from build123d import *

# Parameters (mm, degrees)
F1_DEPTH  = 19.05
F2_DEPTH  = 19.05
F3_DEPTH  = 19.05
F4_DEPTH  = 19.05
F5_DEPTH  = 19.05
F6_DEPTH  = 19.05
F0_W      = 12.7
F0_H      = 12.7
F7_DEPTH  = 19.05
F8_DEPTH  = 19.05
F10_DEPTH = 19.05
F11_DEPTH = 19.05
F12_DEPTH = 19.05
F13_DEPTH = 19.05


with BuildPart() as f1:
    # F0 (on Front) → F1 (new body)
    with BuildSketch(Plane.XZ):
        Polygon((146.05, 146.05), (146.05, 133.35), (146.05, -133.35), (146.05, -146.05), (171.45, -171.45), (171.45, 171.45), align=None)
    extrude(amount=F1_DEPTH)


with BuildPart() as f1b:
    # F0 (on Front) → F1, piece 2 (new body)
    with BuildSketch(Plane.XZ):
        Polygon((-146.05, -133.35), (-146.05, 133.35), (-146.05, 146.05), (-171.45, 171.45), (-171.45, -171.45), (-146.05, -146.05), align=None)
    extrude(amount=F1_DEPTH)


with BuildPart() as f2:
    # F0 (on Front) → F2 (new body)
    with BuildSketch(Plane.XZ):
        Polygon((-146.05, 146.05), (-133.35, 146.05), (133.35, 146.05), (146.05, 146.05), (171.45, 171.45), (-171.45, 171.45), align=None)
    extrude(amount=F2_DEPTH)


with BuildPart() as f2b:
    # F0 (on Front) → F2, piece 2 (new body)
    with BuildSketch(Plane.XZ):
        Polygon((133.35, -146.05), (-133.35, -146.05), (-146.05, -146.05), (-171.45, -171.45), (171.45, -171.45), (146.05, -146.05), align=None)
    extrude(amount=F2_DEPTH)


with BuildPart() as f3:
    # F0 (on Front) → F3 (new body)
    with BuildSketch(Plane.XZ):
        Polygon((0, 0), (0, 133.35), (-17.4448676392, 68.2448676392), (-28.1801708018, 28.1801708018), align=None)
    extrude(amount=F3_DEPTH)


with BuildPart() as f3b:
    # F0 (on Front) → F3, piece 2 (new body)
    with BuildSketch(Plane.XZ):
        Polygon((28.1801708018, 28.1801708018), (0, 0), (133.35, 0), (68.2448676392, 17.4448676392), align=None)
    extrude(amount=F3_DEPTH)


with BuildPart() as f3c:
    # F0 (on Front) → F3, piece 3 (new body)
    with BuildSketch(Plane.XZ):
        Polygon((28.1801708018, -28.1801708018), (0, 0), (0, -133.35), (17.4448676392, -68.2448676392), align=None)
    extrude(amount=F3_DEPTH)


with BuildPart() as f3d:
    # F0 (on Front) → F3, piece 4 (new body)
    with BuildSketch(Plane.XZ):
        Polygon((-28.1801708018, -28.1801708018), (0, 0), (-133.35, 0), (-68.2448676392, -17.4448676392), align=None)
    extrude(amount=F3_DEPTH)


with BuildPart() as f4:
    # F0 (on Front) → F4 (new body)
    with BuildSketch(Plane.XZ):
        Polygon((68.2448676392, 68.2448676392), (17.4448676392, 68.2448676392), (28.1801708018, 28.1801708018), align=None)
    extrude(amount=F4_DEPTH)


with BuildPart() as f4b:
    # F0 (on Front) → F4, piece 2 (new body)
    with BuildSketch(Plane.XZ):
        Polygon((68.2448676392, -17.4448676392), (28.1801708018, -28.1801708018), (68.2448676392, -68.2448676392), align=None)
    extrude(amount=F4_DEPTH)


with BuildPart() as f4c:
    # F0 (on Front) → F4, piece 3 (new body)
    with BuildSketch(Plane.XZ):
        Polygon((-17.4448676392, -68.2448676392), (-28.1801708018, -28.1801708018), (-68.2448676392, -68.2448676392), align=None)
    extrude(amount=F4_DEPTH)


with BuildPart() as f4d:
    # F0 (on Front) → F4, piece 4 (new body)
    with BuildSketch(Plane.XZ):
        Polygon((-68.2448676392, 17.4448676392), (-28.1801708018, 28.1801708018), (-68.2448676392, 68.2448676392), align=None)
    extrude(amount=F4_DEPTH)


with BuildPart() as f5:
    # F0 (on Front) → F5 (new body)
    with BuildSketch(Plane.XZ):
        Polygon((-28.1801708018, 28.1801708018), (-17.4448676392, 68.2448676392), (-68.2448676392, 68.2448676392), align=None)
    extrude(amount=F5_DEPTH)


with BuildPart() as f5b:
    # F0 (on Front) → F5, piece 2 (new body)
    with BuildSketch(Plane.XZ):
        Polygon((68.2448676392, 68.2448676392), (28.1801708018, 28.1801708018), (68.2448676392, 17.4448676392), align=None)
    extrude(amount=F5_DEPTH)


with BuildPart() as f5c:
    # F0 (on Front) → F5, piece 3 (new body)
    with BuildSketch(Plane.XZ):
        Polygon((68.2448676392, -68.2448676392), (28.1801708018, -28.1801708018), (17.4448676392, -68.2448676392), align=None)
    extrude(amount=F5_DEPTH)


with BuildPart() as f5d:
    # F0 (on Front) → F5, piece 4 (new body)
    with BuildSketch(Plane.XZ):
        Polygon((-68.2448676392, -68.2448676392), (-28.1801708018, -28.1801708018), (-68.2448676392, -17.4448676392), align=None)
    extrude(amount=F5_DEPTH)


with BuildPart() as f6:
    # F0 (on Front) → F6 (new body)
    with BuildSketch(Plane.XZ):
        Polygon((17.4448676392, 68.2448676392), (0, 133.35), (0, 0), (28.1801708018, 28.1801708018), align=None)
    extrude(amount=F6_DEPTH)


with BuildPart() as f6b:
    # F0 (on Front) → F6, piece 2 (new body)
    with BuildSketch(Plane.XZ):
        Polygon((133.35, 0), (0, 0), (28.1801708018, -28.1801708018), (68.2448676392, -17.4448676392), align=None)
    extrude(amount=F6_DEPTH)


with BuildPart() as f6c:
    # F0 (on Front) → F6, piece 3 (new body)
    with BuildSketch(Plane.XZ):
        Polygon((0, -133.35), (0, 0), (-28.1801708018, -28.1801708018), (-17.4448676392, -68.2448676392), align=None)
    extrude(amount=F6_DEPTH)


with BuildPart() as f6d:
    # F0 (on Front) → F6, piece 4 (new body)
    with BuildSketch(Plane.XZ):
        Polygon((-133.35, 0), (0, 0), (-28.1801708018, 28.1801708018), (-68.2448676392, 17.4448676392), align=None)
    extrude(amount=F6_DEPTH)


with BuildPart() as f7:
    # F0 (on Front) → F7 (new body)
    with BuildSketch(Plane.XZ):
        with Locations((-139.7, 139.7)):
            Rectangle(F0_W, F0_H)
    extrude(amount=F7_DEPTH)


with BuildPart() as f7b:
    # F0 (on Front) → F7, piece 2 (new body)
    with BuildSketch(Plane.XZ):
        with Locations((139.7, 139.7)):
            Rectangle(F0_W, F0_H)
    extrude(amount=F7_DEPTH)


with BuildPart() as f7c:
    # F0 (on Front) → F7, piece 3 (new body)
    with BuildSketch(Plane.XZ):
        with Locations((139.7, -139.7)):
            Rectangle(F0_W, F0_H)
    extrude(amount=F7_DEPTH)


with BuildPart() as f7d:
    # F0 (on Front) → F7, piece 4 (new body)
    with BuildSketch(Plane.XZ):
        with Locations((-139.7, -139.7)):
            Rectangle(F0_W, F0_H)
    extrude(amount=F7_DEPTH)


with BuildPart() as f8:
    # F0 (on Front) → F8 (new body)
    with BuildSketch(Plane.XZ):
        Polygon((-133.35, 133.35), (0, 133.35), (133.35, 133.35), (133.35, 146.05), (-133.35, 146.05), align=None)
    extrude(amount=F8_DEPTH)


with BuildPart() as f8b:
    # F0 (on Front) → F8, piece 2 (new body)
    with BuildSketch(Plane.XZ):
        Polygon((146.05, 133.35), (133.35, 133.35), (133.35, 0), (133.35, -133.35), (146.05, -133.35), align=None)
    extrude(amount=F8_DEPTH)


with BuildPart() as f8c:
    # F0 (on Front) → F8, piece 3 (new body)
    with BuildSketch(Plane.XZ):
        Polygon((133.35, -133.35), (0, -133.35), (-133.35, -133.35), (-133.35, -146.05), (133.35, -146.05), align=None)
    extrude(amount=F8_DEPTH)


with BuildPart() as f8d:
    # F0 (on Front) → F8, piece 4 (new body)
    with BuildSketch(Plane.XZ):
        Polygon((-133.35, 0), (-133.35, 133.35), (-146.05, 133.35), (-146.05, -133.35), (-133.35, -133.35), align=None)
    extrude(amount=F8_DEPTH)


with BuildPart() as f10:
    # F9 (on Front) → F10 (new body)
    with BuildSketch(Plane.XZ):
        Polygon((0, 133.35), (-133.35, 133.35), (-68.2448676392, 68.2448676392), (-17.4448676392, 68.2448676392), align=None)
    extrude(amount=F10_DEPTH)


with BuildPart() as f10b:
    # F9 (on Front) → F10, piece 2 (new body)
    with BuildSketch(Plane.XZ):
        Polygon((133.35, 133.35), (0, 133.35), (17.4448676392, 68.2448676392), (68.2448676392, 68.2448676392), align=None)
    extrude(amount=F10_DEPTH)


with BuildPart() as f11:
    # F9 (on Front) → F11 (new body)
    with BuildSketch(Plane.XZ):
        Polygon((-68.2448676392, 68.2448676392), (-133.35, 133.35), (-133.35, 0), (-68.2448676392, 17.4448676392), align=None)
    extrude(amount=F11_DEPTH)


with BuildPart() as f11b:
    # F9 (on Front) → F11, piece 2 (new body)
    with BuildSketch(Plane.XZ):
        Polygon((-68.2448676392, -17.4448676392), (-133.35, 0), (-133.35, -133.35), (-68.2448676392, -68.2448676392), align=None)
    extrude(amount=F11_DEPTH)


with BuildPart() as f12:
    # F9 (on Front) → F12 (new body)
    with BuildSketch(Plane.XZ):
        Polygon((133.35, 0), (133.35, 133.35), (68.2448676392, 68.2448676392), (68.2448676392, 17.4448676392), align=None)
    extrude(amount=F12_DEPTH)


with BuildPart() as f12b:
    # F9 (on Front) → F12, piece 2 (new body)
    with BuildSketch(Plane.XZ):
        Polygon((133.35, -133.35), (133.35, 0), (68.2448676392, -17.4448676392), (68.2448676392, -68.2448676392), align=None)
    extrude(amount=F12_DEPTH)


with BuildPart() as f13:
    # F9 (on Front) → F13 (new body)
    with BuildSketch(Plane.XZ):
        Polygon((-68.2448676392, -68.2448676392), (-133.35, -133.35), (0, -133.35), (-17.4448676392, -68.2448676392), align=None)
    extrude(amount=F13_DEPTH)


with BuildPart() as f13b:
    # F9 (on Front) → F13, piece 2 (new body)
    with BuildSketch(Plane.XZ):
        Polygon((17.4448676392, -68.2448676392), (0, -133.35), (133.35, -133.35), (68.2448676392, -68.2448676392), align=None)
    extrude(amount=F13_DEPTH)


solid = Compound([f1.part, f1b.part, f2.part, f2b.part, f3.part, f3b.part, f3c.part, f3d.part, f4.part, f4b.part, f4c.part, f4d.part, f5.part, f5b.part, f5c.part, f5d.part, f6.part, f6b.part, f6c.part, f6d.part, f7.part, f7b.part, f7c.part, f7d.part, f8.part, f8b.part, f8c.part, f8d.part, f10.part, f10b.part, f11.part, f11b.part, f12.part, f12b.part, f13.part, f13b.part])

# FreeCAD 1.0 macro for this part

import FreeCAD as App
import Part
import Sketcher
Q = App.Units.Quantity

doc = App.newDocument("Part")
body = doc.addObject("PartDesign::Body", "Body")

# Sketch on XZ plane
sketch1 = body.newObject("Sketcher::SketchObject", "Sketch")
sketch1.AttachmentSupport = (doc.getObject("XZ_Plane"), [""])
sketch1.MapMode = "FlatFace"
sketch1.addGeometry([
    Part.LineSegment(App.Vector(146, 146, 0), App.Vector(146, -146, 0)),
    Part.LineSegment(App.Vector(146, -146, 0), App.Vector(171, -171, 0)),
    Part.LineSegment(App.Vector(171, -171, 0), App.Vector(171, 171, 0)),
    Part.LineSegment(App.Vector(171, 171, 0), App.Vector(146, 146, 0)),
], False)
sketch1.addConstraint([
    Sketcher.Constraint("Coincident", 0, 2, 1, 1),
    Sketcher.Constraint("Coincident", 1, 2, 2, 1),
    Sketcher.Constraint("Coincident", 2, 2, 3, 1),
    Sketcher.Constraint("Coincident", 3, 2, 0, 1),
    Sketcher.Constraint("Vertical", 0),
    Sketcher.Constraint("Vertical", 2),
    Sketcher.Constraint("Perpendicular", 1, 3),
    Sketcher.Constraint("Equal", 1, 3),
    Sketcher.Constraint("DistanceY", 0, 2, 0, 1, Q("11.5 in")),
    Sketcher.Constraint("DistanceY", 2, 1, 2, 2, Q("13.5 in")),
    Sketcher.Constraint("DistanceX", -1, 1, 0, 2, Q("5.75 in")),
    Sketcher.Constraint("DistanceY", 0, 2, -1, 1, Q("5.75 in")),
])
pad1 = body.newObject("PartDesign::Pad", "Pad")
pad1.Profile = sketch1
pad1.Length = Q("0.75 in")
body2 = doc.addObject("PartDesign::Body", "Body001")

# Sketch on XZ plane
sketch2 = body2.newObject("Sketcher::SketchObject", "Sketch001")
sketch2.AttachmentSupport = (doc.getObject("XZ_Plane001"), [""])
sketch2.MapMode = "FlatFace"
sketch2.addGeometry([
    Part.LineSegment(App.Vector(-146, 146, 0), App.Vector(-171, 171, 0)),
    Part.LineSegment(App.Vector(-171, 171, 0), App.Vector(-171, -171, 0)),
    Part.LineSegment(App.Vector(-171, -171, 0), App.Vector(-146, -146, 0)),
    Part.LineSegment(App.Vector(-146, -146, 0), App.Vector(-146, 146, 0)),
], False)
sketch2.addConstraint([
    Sketcher.Constraint("Coincident", 0, 2, 1, 1),
    Sketcher.Constraint("Coincident", 1, 2, 2, 1),
    Sketcher.Constraint("Coincident", 2, 2, 3, 1),
    Sketcher.Constraint("Coincident", 3, 2, 0, 1),
    Sketcher.Constraint("Vertical", 1),
    Sketcher.Constraint("Vertical", 3),
    Sketcher.Constraint("Perpendicular", 0, 2),
    Sketcher.Constraint("Equal", 0, 2),
    Sketcher.Constraint("DistanceY", 1, 2, 1, 1, Q("13.5 in")),
    Sketcher.Constraint("DistanceY", 3, 1, 3, 2, Q("11.5 in")),
    Sketcher.Constraint("DistanceX", 0, 2, -1, 1, Q("6.75 in")),
    Sketcher.Constraint("DistanceY", -1, 1, 0, 2, Q("6.75 in")),
])
pad2 = body2.newObject("PartDesign::Pad", "Pad001")
pad2.Profile = sketch2
pad2.Length = Q("0.75 in")
body3 = doc.addObject("PartDesign::Body", "Body002")

# Sketch on XZ plane
sketch3 = body3.newObject("Sketcher::SketchObject", "Sketch002")
sketch3.AttachmentSupport = (doc.getObject("XZ_Plane002"), [""])
sketch3.MapMode = "FlatFace"
sketch3.addGeometry([
    Part.LineSegment(App.Vector(-146, 146, 0), App.Vector(146, 146, 0)),
    Part.LineSegment(App.Vector(146, 146, 0), App.Vector(171, 171, 0)),
    Part.LineSegment(App.Vector(171, 171, 0), App.Vector(-171, 171, 0)),
    Part.LineSegment(App.Vector(-171, 171, 0), App.Vector(-146, 146, 0)),
], False)
sketch3.addConstraint([
    Sketcher.Constraint("Coincident", 0, 2, 1, 1),
    Sketcher.Constraint("Coincident", 1, 2, 2, 1),
    Sketcher.Constraint("Coincident", 2, 2, 3, 1),
    Sketcher.Constraint("Coincident", 3, 2, 0, 1),
    Sketcher.Constraint("Horizontal", 0),
    Sketcher.Constraint("Horizontal", 2),
    Sketcher.Constraint("Perpendicular", 1, 3),
    Sketcher.Constraint("Equal", 1, 3),
    Sketcher.Constraint("DistanceX", 0, 1, 0, 2, Q("11.5 in")),
    Sketcher.Constraint("DistanceX", 2, 2, 2, 1, Q("13.5 in")),
    Sketcher.Constraint("DistanceX", -1, 1, 0, 2, Q("5.75 in")),
    Sketcher.Constraint("DistanceY", -1, 1, 0, 2, Q("5.75 in")),
])
pad3 = body3.newObject("PartDesign::Pad", "Pad002")
pad3.Profile = sketch3
pad3.Length = Q("0.75 in")
body4 = doc.addObject("PartDesign::Body", "Body003")

# Sketch on XZ plane
sketch4 = body4.newObject("Sketcher::SketchObject", "Sketch003")
sketch4.AttachmentSupport = (doc.getObject("XZ_Plane003"), [""])
sketch4.MapMode = "FlatFace"
sketch4.addGeometry([
    Part.LineSegment(App.Vector(-146, -146, 0), App.Vector(-171, -171, 0)),
    Part.LineSegment(App.Vector(-171, -171, 0), App.Vector(171, -171, 0)),
    Part.LineSegment(App.Vector(171, -171, 0), App.Vector(146, -146, 0)),
    Part.LineSegment(App.Vector(146, -146, 0), App.Vector(-146, -146, 0)),
], False)
sketch4.addConstraint([
    Sketcher.Constraint("Coincident", 0, 2, 1, 1),
    Sketcher.Constraint("Coincident", 1, 2, 2, 1),
    Sketcher.Constraint("Coincident", 2, 2, 3, 1),
    Sketcher.Constraint("Coincident", 3, 2, 0, 1),
    Sketcher.Constraint("Horizontal", 1),
    Sketcher.Constraint("Horizontal", 3),
    Sketcher.Constraint("Perpendicular", 0, 2),
    Sketcher.Constraint("Equal", 0, 2),
    Sketcher.Constraint("DistanceX", 1, 1, 1, 2, Q("13.5 in")),
    Sketcher.Constraint("DistanceX", 3, 2, 3, 1, Q("11.5 in")),
    Sketcher.Constraint("DistanceX", 0, 2, -1, 1, Q("6.75 in")),
    Sketcher.Constraint("DistanceY", 0, 2, -1, 1, Q("6.75 in")),
])
pad4 = body4.newObject("PartDesign::Pad", "Pad003")
pad4.Profile = sketch4
pad4.Length = Q("0.75 in")
body5 = doc.addObject("PartDesign::Body", "Body004")

# Sketch on XZ plane
sketch5 = body5.newObject("Sketcher::SketchObject", "Sketch004")
sketch5.AttachmentSupport = (doc.getObject("XZ_Plane004"), [""])
sketch5.MapMode = "FlatFace"
sketch5.addGeometry([
    Part.LineSegment(App.Vector(0, 0, 0), App.Vector(0, 133, 0)),
    Part.LineSegment(App.Vector(0, 133, 0), App.Vector(-28, 28, 0)),
    Part.LineSegment(App.Vector(-28, 28, 0), App.Vector(0, 0, 0)),
], False)
sketch5.addConstraint([
    Sketcher.Constraint("Coincident", 0, 2, 1, 1),
    Sketcher.Constraint("Coincident", 1, 2, 2, 1),
    Sketcher.Constraint("Coincident", 2, 2, 0, 1),
    Sketcher.Constraint("Vertical", 0),
    Sketcher.Constraint("Coincident", 2, 2, -1, 1),
    Sketcher.Constraint("Angle", 1, Q("-105 deg")),
    Sketcher.Constraint("Angle", 2, Q("-45 deg")),
    Sketcher.Constraint("DistanceY", 0, 1, 0, 2, Q("5.25 in")),
])
pad5 = body5.newObject("PartDesign::Pad", "Pad004")
pad5.Profile = sketch5
pad5.Length = Q("0.75 in")
body6 = doc.addObject("PartDesign::Body", "Body005")

# Sketch on XZ plane
sketch6 = body6.newObject("Sketcher::SketchObject", "Sketch005")
sketch6.AttachmentSupport = (doc.getObject("XZ_Plane005"), [""])
sketch6.MapMode = "FlatFace"
sketch6.addGeometry([
    Part.LineSegment(App.Vector(28, 28, 0), App.Vector(0, 0, 0)),
    Part.LineSegment(App.Vector(0, 0, 0), App.Vector(133, 0, 0)),
    Part.LineSegment(App.Vector(133, 0, 0), App.Vector(28, 28, 0)),
], False)
sketch6.addConstraint([
    Sketcher.Constraint("Coincident", 0, 2, 1, 1),
    Sketcher.Constraint("Coincident", 1, 2, 2, 1),
    Sketcher.Constraint("Coincident", 2, 2, 0, 1),
    Sketcher.Constraint("Horizontal", 1),
    Sketcher.Constraint("Coincident", 0, 2, -1, 1),
    Sketcher.Constraint("Angle", 0, Q("-135 deg")),
    Sketcher.Constraint("Angle", 2, Q("165 deg")),
    Sketcher.Constraint("DistanceX", 1, 1, 1, 2, Q("5.25 in")),
])
pad6 = body6.newObject("PartDesign::Pad", "Pad005")
pad6.Profile = sketch6
pad6.Length = Q("0.75 in")
body7 = doc.addObject("PartDesign::Body", "Body006")

# Sketch on XZ plane
sketch7 = body7.newObject("Sketcher::SketchObject", "Sketch006")
sketch7.AttachmentSupport = (doc.getObject("XZ_Plane006"), [""])
sketch7.MapMode = "FlatFace"
sketch7.addGeometry([
    Part.LineSegment(App.Vector(28, -28, 0), App.Vector(0, 0, 0)),
    Part.LineSegment(App.Vector(0, 0, 0), App.Vector(0, -133, 0)),
    Part.LineSegment(App.Vector(0, -133, 0), App.Vector(28, -28, 0)),
], False)
sketch7.addConstraint([
    Sketcher.Constraint("Coincident", 0, 2, 1, 1),
    Sketcher.Constraint("Coincident", 1, 2, 2, 1),
    Sketcher.Constraint("Coincident", 2, 2, 0, 1),
    Sketcher.Constraint("Vertical", 1),
    Sketcher.Constraint("Coincident", 0, 2, -1, 1),
    Sketcher.Constraint("Angle", 0, Q("135 deg")),
    Sketcher.Constraint("Angle", 2, Q("75 deg")),
    Sketcher.Constraint("DistanceY", 1, 2, 1, 1, Q("5.25 in")),
])
pad7 = body7.newObject("PartDesign::Pad", "Pad006")
pad7.Profile = sketch7
pad7.Length = Q("0.75 in")
body8 = doc.addObject("PartDesign::Body", "Body007")

# Sketch on XZ plane
sketch8 = body8.newObject("Sketcher::SketchObject", "Sketch007")
sketch8.AttachmentSupport = (doc.getObject("XZ_Plane007"), [""])
sketch8.MapMode = "FlatFace"
sketch8.addGeometry([
    Part.LineSegment(App.Vector(-28, -28, 0), App.Vector(0, 0, 0)),
    Part.LineSegment(App.Vector(0, 0, 0), App.Vector(-133, 0, 0)),
    Part.LineSegment(App.Vector(-133, 0, 0), App.Vector(-28, -28, 0)),
], False)
sketch8.addConstraint([
    Sketcher.Constraint("Coincident", 0, 2, 1, 1),
    Sketcher.Constraint("Coincident", 1, 2, 2, 1),
    Sketcher.Constraint("Coincident", 2, 2, 0, 1),
    Sketcher.Constraint("Horizontal", 1),
    Sketcher.Constraint("Coincident", 0, 2, -1, 1),
    Sketcher.Constraint("Angle", 0, Q("45 deg")),
    Sketcher.Constraint("Angle", 2, Q("-15 deg")),
    Sketcher.Constraint("DistanceX", 1, 2, 1, 1, Q("5.25 in")),
])
pad8 = body8.newObject("PartDesign::Pad", "Pad007")
pad8.Profile = sketch8
pad8.Length = Q("0.75 in")
body9 = doc.addObject("PartDesign::Body", "Body008")

# Sketch on XZ plane
sketch9 = body9.newObject("Sketcher::SketchObject", "Sketch008")
sketch9.AttachmentSupport = (doc.getObject("XZ_Plane008"), [""])
sketch9.MapMode = "FlatFace"
sketch9.addGeometry([
    Part.LineSegment(App.Vector(68, 68, 0), App.Vector(17, 68, 0)),
    Part.LineSegment(App.Vector(17, 68, 0), App.Vector(28, 28, 0)),
    Part.LineSegment(App.Vector(28, 28, 0), App.Vector(68, 68, 0)),
], False)
sketch9.addConstraint([
    Sketcher.Constraint("Coincident", 0, 2, 1, 1),
    Sketcher.Constraint("Coincident", 1, 2, 2, 1),
    Sketcher.Constraint("Coincident", 2, 2, 0, 1),
    Sketcher.Constraint("Horizontal", 0),
    Sketcher.Constraint("DistanceX", 0, 2, 0, 1, Q("2 in")),
    Sketcher.Constraint("Angle", 1, Q("-75 deg")),
    Sketcher.Constraint("Angle", 2, Q("45 deg")),
    Sketcher.Constraint("DistanceX", -1, 1, 1, 2, Q("28.180171 mm")),
    Sketcher.Constraint("DistanceY", -1, 1, 1, 2, Q("28.180171 mm")),
])
pad9 = body9.newObject("PartDesign::Pad", "Pad008")
pad9.Profile = sketch9
pad9.Length = Q("0.75 in")
body10 = doc.addObject("PartDesign::Body", "Body009")

# Sketch on XZ plane
sketch10 = body10.newObject("Sketcher::SketchObject", "Sketch009")
sketch10.AttachmentSupport = (doc.getObject("XZ_Plane009"), [""])
sketch10.MapMode = "FlatFace"
sketch10.addGeometry([
    Part.LineSegment(App.Vector(68, -17, 0), App.Vector(28, -28, 0)),
    Part.LineSegment(App.Vector(28, -28, 0), App.Vector(68, -68, 0)),
    Part.LineSegment(App.Vector(68, -68, 0), App.Vector(68, -17, 0)),
], False)
sketch10.addConstraint([
    Sketcher.Constraint("Coincident", 0, 2, 1, 1),
    Sketcher.Constraint("Coincident", 1, 2, 2, 1),
    Sketcher.Constraint("Coincident", 2, 2, 0, 1),
    Sketcher.Constraint("Vertical", 2),
    Sketcher.Constraint("DistanceY", 2, 1, 2, 2, Q("2 in")),
    Sketcher.Constraint("Angle", 0, Q("-165 deg")),
    Sketcher.Constraint("Angle", 1, Q("-45 deg")),
    Sketcher.Constraint("DistanceX", -1, 1, 0, 2, Q("28.180171 mm")),
    Sketcher.Constraint("DistanceY", 0, 2, -1, 1, Q("28.180171 mm")),
])
pad10 = body10.newObject("PartDesign::Pad", "Pad009")
pad10.Profile = sketch10
pad10.Length = Q("0.75 in")
body11 = doc.addObject("PartDesign::Body", "Body010")

# Sketch on XZ plane
sketch11 = body11.newObject("Sketcher::SketchObject", "Sketch010")
sketch11.AttachmentSupport = (doc.getObject("XZ_Plane010"), [""])
sketch11.MapMode = "FlatFace"
sketch11.addGeometry([
    Part.LineSegment(App.Vector(-17, -68, 0), App.Vector(-28, -28, 0)),
    Part.LineSegment(App.Vector(-28, -28, 0), App.Vector(-68, -68, 0)),
    Part.LineSegment(App.Vector(-68, -68, 0), App.Vector(-17, -68, 0)),
], False)
sketch11.addConstraint([
    Sketcher.Constraint("Coincident", 0, 2, 1, 1),
    Sketcher.Constraint("Coincident", 1, 2, 2, 1),
    Sketcher.Constraint("Coincident", 2, 2, 0, 1),
    Sketcher.Constraint("Horizontal", 2),
    Sketcher.Constraint("DistanceX", 2, 1, 2, 2, Q("2 in")),
    Sketcher.Constraint("Angle", 0, Q("105 deg")),
    Sketcher.Constraint("Angle", 1, Q("-135 deg")),
    Sketcher.Constraint("DistanceX", 0, 2, -1, 1, Q("28.180171 mm")),
    Sketcher.Constraint("DistanceY", 0, 2, -1, 1, Q("28.180171 mm")),
])
pad11 = body11.newObject("PartDesign::Pad", "Pad010")
pad11.Profile = sketch11
pad11.Length = Q("0.75 in")
body12 = doc.addObject("PartDesign::Body", "Body011")

# Sketch on XZ plane
sketch12 = body12.newObject("Sketcher::SketchObject", "Sketch011")
sketch12.AttachmentSupport = (doc.getObject("XZ_Plane011"), [""])
sketch12.MapMode = "FlatFace"
sketch12.addGeometry([
    Part.LineSegment(App.Vector(-68, 17, 0), App.Vector(-28, 28, 0)),
    Part.LineSegment(App.Vector(-28, 28, 0), App.Vector(-68, 68, 0)),
    Part.LineSegment(App.Vector(-68, 68, 0), App.Vector(-68, 17, 0)),
], False)
sketch12.addConstraint([
    Sketcher.Constraint("Coincident", 0, 2, 1, 1),
    Sketcher.Constraint("Coincident", 1, 2, 2, 1),
    Sketcher.Constraint("Coincident", 2, 2, 0, 1),
    Sketcher.Constraint("Vertical", 2),
    Sketcher.Constraint("DistanceY", 2, 2, 2, 1, Q("2 in")),
    Sketcher.Constraint("Angle", 0, Q("15 deg")),
    Sketcher.Constraint("Angle", 1, Q("135 deg")),
    Sketcher.Constraint("DistanceX", 0, 2, -1, 1, Q("28.180171 mm")),
    Sketcher.Constraint("DistanceY", -1, 1, 0, 2, Q("28.180171 mm")),
])
pad12 = body12.newObject("PartDesign::Pad", "Pad011")
pad12.Profile = sketch12
pad12.Length = Q("0.75 in")
body13 = doc.addObject("PartDesign::Body", "Body012")

# Sketch on XZ plane
sketch13 = body13.newObject("Sketcher::SketchObject", "Sketch012")
sketch13.AttachmentSupport = (doc.getObject("XZ_Plane012"), [""])
sketch13.MapMode = "FlatFace"
sketch13.addGeometry([
    Part.LineSegment(App.Vector(-28, 28, 0), App.Vector(-17, 68, 0)),
    Part.LineSegment(App.Vector(-17, 68, 0), App.Vector(-68, 68, 0)),
    Part.LineSegment(App.Vector(-68, 68, 0), App.Vector(-28, 28, 0)),
], False)
sketch13.addConstraint([
    Sketcher.Constraint("Coincident", 0, 2, 1, 1),
    Sketcher.Constraint("Coincident", 1, 2, 2, 1),
    Sketcher.Constraint("Coincident", 2, 2, 0, 1),
    Sketcher.Constraint("Horizontal", 1),
    Sketcher.Constraint("DistanceX", 1, 2, 1, 1, Q("2 in")),
    Sketcher.Constraint("Angle", 0, Q("75 deg")),
    Sketcher.Constraint("Angle", 2, Q("-45 deg")),
    Sketcher.Constraint("DistanceX", 2, 2, -1, 1, Q("28.180171 mm")),
    Sketcher.Constraint("DistanceY", -1, 1, 2, 2, Q("28.180171 mm")),
])
pad13 = body13.newObject("PartDesign::Pad", "Pad012")
pad13.Profile = sketch13
pad13.Length = Q("0.75 in")
body14 = doc.addObject("PartDesign::Body", "Body013")

# Sketch on XZ plane
sketch14 = body14.newObject("Sketcher::SketchObject", "Sketch013")
sketch14.AttachmentSupport = (doc.getObject("XZ_Plane013"), [""])
sketch14.MapMode = "FlatFace"
sketch14.addGeometry([
    Part.LineSegment(App.Vector(68, 68, 0), App.Vector(28, 28, 0)),
    Part.LineSegment(App.Vector(28, 28, 0), App.Vector(68, 17, 0)),
    Part.LineSegment(App.Vector(68, 17, 0), App.Vector(68, 68, 0)),
], False)
sketch14.addConstraint([
    Sketcher.Constraint("Coincident", 0, 2, 1, 1),
    Sketcher.Constraint("Coincident", 1, 2, 2, 1),
    Sketcher.Constraint("Coincident", 2, 2, 0, 1),
    Sketcher.Constraint("Vertical", 2),
    Sketcher.Constraint("DistanceY", 2, 1, 2, 2, Q("2 in")),
    Sketcher.Constraint("Angle", 0, Q("-135 deg")),
    Sketcher.Constraint("Angle", 1, Q("-15 deg")),
    Sketcher.Constraint("DistanceX", -1, 1, 0, 2, Q("28.180171 mm")),
    Sketcher.Constraint("DistanceY", -1, 1, 0, 2, Q("28.180171 mm")),
])
pad14 = body14.newObject("PartDesign::Pad", "Pad013")
pad14.Profile = sketch14
pad14.Length = Q("0.75 in")
body15 = doc.addObject("PartDesign::Body", "Body014")

# Sketch on XZ plane
sketch15 = body15.newObject("Sketcher::SketchObject", "Sketch014")
sketch15.AttachmentSupport = (doc.getObject("XZ_Plane014"), [""])
sketch15.MapMode = "FlatFace"
sketch15.addGeometry([
    Part.LineSegment(App.Vector(68, -68, 0), App.Vector(28, -28, 0)),
    Part.LineSegment(App.Vector(28, -28, 0), App.Vector(17, -68, 0)),
    Part.LineSegment(App.Vector(17, -68, 0), App.Vector(68, -68, 0)),
], False)
sketch15.addConstraint([
    Sketcher.Constraint("Coincident", 0, 2, 1, 1),
    Sketcher.Constraint("Coincident", 1, 2, 2, 1),
    Sketcher.Constraint("Coincident", 2, 2, 0, 1),
    Sketcher.Constraint("Horizontal", 2),
    Sketcher.Constraint("DistanceX", 2, 1, 2, 2, Q("2 in")),
    Sketcher.Constraint("Angle", 0, Q("135 deg")),
    Sketcher.Constraint("Angle", 1, Q("-105 deg")),
    Sketcher.Constraint("DistanceX", -1, 1, 0, 2, Q("28.180171 mm")),
    Sketcher.Constraint("DistanceY", 0, 2, -1, 1, Q("28.180171 mm")),
])
pad15 = body15.newObject("PartDesign::Pad", "Pad014")
pad15.Profile = sketch15
pad15.Length = Q("0.75 in")
body16 = doc.addObject("PartDesign::Body", "Body015")

# Sketch on XZ plane
sketch16 = body16.newObject("Sketcher::SketchObject", "Sketch015")
sketch16.AttachmentSupport = (doc.getObject("XZ_Plane015"), [""])
sketch16.MapMode = "FlatFace"
sketch16.addGeometry([
    Part.LineSegment(App.Vector(-68, -68, 0), App.Vector(-28, -28, 0)),
    Part.LineSegment(App.Vector(-28, -28, 0), App.Vector(-68, -17, 0)),
    Part.LineSegment(App.Vector(-68, -17, 0), App.Vector(-68, -68, 0)),
], False)
sketch16.addConstraint([
    Sketcher.Constraint("Coincident", 0, 2, 1, 1),
    Sketcher.Constraint("Coincident", 1, 2, 2, 1),
    Sketcher.Constraint("Coincident", 2, 2, 0, 1),
    Sketcher.Constraint("Vertical", 2),
    Sketcher.Constraint("DistanceY", 2, 2, 2, 1, Q("2 in")),
    Sketcher.Constraint("Angle", 0, Q("45 deg")),
    Sketcher.Constraint("Angle", 1, Q("165 deg")),
    Sketcher.Constraint("DistanceX", 0, 2, -1, 1, Q("28.180171 mm")),
    Sketcher.Constraint("DistanceY", 0, 2, -1, 1, Q("28.180171 mm")),
])
pad16 = body16.newObject("PartDesign::Pad", "Pad015")
pad16.Profile = sketch16
pad16.Length = Q("0.75 in")
body17 = doc.addObject("PartDesign::Body", "Body016")

# Sketch on XZ plane
sketch17 = body17.newObject("Sketcher::SketchObject", "Sketch016")
sketch17.AttachmentSupport = (doc.getObject("XZ_Plane016"), [""])
sketch17.MapMode = "FlatFace"
sketch17.addGeometry([
    Part.LineSegment(App.Vector(0, 133, 0), App.Vector(0, 0, 0)),
    Part.LineSegment(App.Vector(0, 0, 0), App.Vector(28, 28, 0)),
    Part.LineSegment(App.Vector(28, 28, 0), App.Vector(0, 133, 0)),
], False)
sketch17.addConstraint([
    Sketcher.Constraint("Coincident", 0, 2, 1, 1),
    Sketcher.Constraint("Coincident", 1, 2, 2, 1),
    Sketcher.Constraint("Coincident", 2, 2, 0, 1),
    Sketcher.Constraint("Vertical", 0),
    Sketcher.Constraint("Coincident", 0, 2, -1, 1),
    Sketcher.Constraint("Angle", 1, Q("45 deg")),
    Sketcher.Constraint("Angle", 2, Q("105 deg")),
    Sketcher.Constraint("DistanceY", 0, 2, 0, 1, Q("5.25 in")),
])
pad17 = body17.newObject("PartDesign::Pad", "Pad016")
pad17.Profile = sketch17
pad17.Length = Q("0.75 in")
body18 = doc.addObject("PartDesign::Body", "Body017")

# Sketch on XZ plane
sketch18 = body18.newObject("Sketcher::SketchObject", "Sketch017")
sketch18.AttachmentSupport = (doc.getObject("XZ_Plane017"), [""])
sketch18.MapMode = "FlatFace"
sketch18.addGeometry([
    Part.LineSegment(App.Vector(133, 0, 0), App.Vector(0, 0, 0)),
    Part.LineSegment(App.Vector(0, 0, 0), App.Vector(28, -28, 0)),
    Part.LineSegment(App.Vector(28, -28, 0), App.Vector(133, 0, 0)),
], False)
sketch18.addConstraint([
    Sketcher.Constraint("Coincident", 0, 2, 1, 1),
    Sketcher.Constraint("Coincident", 1, 2, 2, 1),
    Sketcher.Constraint("Coincident", 2, 2, 0, 1),
    Sketcher.Constraint("Horizontal", 0),
    Sketcher.Constraint("Coincident", 0, 2, -1, 1),
    Sketcher.Constraint("Angle", 1, Q("-45 deg")),
    Sketcher.Constraint("Angle", 2, Q("15 deg")),
    Sketcher.Constraint("DistanceX", 0, 2, 0, 1, Q("5.25 in")),
])
pad18 = body18.newObject("PartDesign::Pad", "Pad017")
pad18.Profile = sketch18
pad18.Length = Q("0.75 in")
body19 = doc.addObject("PartDesign::Body", "Body018")

# Sketch on XZ plane
sketch19 = body19.newObject("Sketcher::SketchObject", "Sketch018")
sketch19.AttachmentSupport = (doc.getObject("XZ_Plane018"), [""])
sketch19.MapMode = "FlatFace"
sketch19.addGeometry([
    Part.LineSegment(App.Vector(0, -133, 0), App.Vector(0, 0, 0)),
    Part.LineSegment(App.Vector(0, 0, 0), App.Vector(-28, -28, 0)),
    Part.LineSegment(App.Vector(-28, -28, 0), App.Vector(0, -133, 0)),
], False)
sketch19.addConstraint([
    Sketcher.Constraint("Coincident", 0, 2, 1, 1),
    Sketcher.Constraint("Coincident", 1, 2, 2, 1),
    Sketcher.Constraint("Coincident", 2, 2, 0, 1),
    Sketcher.Constraint("Vertical", 0),
    Sketcher.Constraint("Coincident", 0, 2, -1, 1),
    Sketcher.Constraint("Angle", 1, Q("-135 deg")),
    Sketcher.Constraint("Angle", 2, Q("-75 deg")),
    Sketcher.Constraint("DistanceY", 0, 1, 0, 2, Q("5.25 in")),
])
pad19 = body19.newObject("PartDesign::Pad", "Pad018")
pad19.Profile = sketch19
pad19.Length = Q("0.75 in")
body20 = doc.addObject("PartDesign::Body", "Body019")

# Sketch on XZ plane
sketch20 = body20.newObject("Sketcher::SketchObject", "Sketch019")
sketch20.AttachmentSupport = (doc.getObject("XZ_Plane019"), [""])
sketch20.MapMode = "FlatFace"
sketch20.addGeometry([
    Part.LineSegment(App.Vector(-133, 0, 0), App.Vector(0, 0, 0)),
    Part.LineSegment(App.Vector(0, 0, 0), App.Vector(-28, 28, 0)),
    Part.LineSegment(App.Vector(-28, 28, 0), App.Vector(-133, 0, 0)),
], False)
sketch20.addConstraint([
    Sketcher.Constraint("Coincident", 0, 2, 1, 1),
    Sketcher.Constraint("Coincident", 1, 2, 2, 1),
    Sketcher.Constraint("Coincident", 2, 2, 0, 1),
    Sketcher.Constraint("Horizontal", 0),
    Sketcher.Constraint("Coincident", 0, 2, -1, 1),
    Sketcher.Constraint("Angle", 1, Q("135 deg")),
    Sketcher.Constraint("Angle", 2, Q("-165 deg")),
    Sketcher.Constraint("DistanceX", 0, 1, 0, 2, Q("5.25 in")),
])
pad20 = body20.newObject("PartDesign::Pad", "Pad019")
pad20.Profile = sketch20
pad20.Length = Q("0.75 in")
body21 = doc.addObject("PartDesign::Body", "Body020")

# Sketch on XZ plane
sketch21 = body21.newObject("Sketcher::SketchObject", "Sketch020")
sketch21.AttachmentSupport = (doc.getObject("XZ_Plane020"), [""])
sketch21.MapMode = "FlatFace"
sketch21.addGeometry([
    Part.LineSegment(App.Vector(-146, 146, 0), App.Vector(-146, 133, 0)),
    Part.LineSegment(App.Vector(-146, 133, 0), App.Vector(-133, 133, 0)),
    Part.LineSegment(App.Vector(-133, 133, 0), App.Vector(-133, 146, 0)),
    Part.LineSegment(App.Vector(-133, 146, 0), App.Vector(-146, 146, 0)),
], False)
sketch21.addConstraint([
    Sketcher.Constraint("Coincident", 0, 2, 1, 1),
    Sketcher.Constraint("Coincident", 1, 2, 2, 1),
    Sketcher.Constraint("Coincident", 2, 2, 3, 1),
    Sketcher.Constraint("Coincident", 3, 2, 0, 1),
    Sketcher.Constraint("Vertical", 0),
    Sketcher.Constraint("Horizontal", 1),
    Sketcher.Constraint("Vertical", 2),
    Sketcher.Constraint("Horizontal", 3),
    Sketcher.Constraint("Equal", 3, 0),
    Sketcher.Constraint("DistanceX", 1, 1, 1, 2, Q("0.5 in")),
    Sketcher.Constraint("DistanceX", 0, 2, -1, 1, Q("5.75 in")),
    Sketcher.Constraint("DistanceY", -1, 1, 0, 2, Q("5.25 in")),
])
pad21 = body21.newObject("PartDesign::Pad", "Pad020")
pad21.Profile = sketch21
pad21.Length = Q("0.75 in")
body22 = doc.addObject("PartDesign::Body", "Body021")

# Sketch on XZ plane
sketch22 = body22.newObject("Sketcher::SketchObject", "Sketch021")
sketch22.AttachmentSupport = (doc.getObject("XZ_Plane021"), [""])
sketch22.MapMode = "FlatFace"
sketch22.addGeometry([
    Part.LineSegment(App.Vector(133, 146, 0), App.Vector(133, 133, 0)),
    Part.LineSegment(App.Vector(133, 133, 0), App.Vector(146, 133, 0)),
    Part.LineSegment(App.Vector(146, 133, 0), App.Vector(146, 146, 0)),
    Part.LineSegment(App.Vector(146, 146, 0), App.Vector(133, 146, 0)),
], False)
sketch22.addConstraint([
    Sketcher.Constraint("Coincident", 0, 2, 1, 1),
    Sketcher.Constraint("Coincident", 1, 2, 2, 1),
    Sketcher.Constraint("Coincident", 2, 2, 3, 1),
    Sketcher.Constraint("Coincident", 3, 2, 0, 1),
    Sketcher.Constraint("Vertical", 0),
    Sketcher.Constraint("Horizontal", 1),
    Sketcher.Constraint("Vertical", 2),
    Sketcher.Constraint("Horizontal", 3),
    Sketcher.Constraint("Equal", 3, 0),
    Sketcher.Constraint("DistanceX", 1, 1, 1, 2, Q("0.5 in")),
    Sketcher.Constraint("DistanceX", -1, 1, 0, 2, Q("5.25 in")),
    Sketcher.Constraint("DistanceY", -1, 1, 0, 2, Q("5.25 in")),
])
pad22 = body22.newObject("PartDesign::Pad", "Pad021")
pad22.Profile = sketch22
pad22.Length = Q("0.75 in")
body23 = doc.addObject("PartDesign::Body", "Body022")

# Sketch on XZ plane
sketch23 = body23.newObject("Sketcher::SketchObject", "Sketch022")
sketch23.AttachmentSupport = (doc.getObject("XZ_Plane022"), [""])
sketch23.MapMode = "FlatFace"
sketch23.addGeometry([
    Part.LineSegment(App.Vector(133, -133, 0), App.Vector(133, -146, 0)),
    Part.LineSegment(App.Vector(133, -146, 0), App.Vector(146, -146, 0)),
    Part.LineSegment(App.Vector(146, -146, 0), App.Vector(146, -133, 0)),
    Part.LineSegment(App.Vector(146, -133, 0), App.Vector(133, -133, 0)),
], False)
sketch23.addConstraint([
    Sketcher.Constraint("Coincident", 0, 2, 1, 1),
    Sketcher.Constraint("Coincident", 1, 2, 2, 1),
    Sketcher.Constraint("Coincident", 2, 2, 3, 1),
    Sketcher.Constraint("Coincident", 3, 2, 0, 1),
    Sketcher.Constraint("Vertical", 0),
    Sketcher.Constraint("Horizontal", 1),
    Sketcher.Constraint("Vertical", 2),
    Sketcher.Constraint("Horizontal", 3),
    Sketcher.Constraint("Equal", 3, 0),
    Sketcher.Constraint("DistanceX", 1, 1, 1, 2, Q("0.5 in")),
    Sketcher.Constraint("DistanceX", -1, 1, 0, 2, Q("5.25 in")),
    Sketcher.Constraint("DistanceY", 0, 2, -1, 1, Q("5.75 in")),
])
pad23 = body23.newObject("PartDesign::Pad", "Pad022")
pad23.Profile = sketch23
pad23.Length = Q("0.75 in")
body24 = doc.addObject("PartDesign::Body", "Body023")

# Sketch on XZ plane
sketch24 = body24.newObject("Sketcher::SketchObject", "Sketch023")
sketch24.AttachmentSupport = (doc.getObject("XZ_Plane023"), [""])
sketch24.MapMode = "FlatFace"
sketch24.addGeometry([
    Part.LineSegment(App.Vector(-146, -133, 0), App.Vector(-146, -146, 0)),
    Part.LineSegment(App.Vector(-146, -146, 0), App.Vector(-133, -146, 0)),
    Part.LineSegment(App.Vector(-133, -146, 0), App.Vector(-133, -133, 0)),
    Part.LineSegment(App.Vector(-133, -133, 0), App.Vector(-146, -133, 0)),
], False)
sketch24.addConstraint([
    Sketcher.Constraint("Coincident", 0, 2, 1, 1),
    Sketcher.Constraint("Coincident", 1, 2, 2, 1),
    Sketcher.Constraint("Coincident", 2, 2, 3, 1),
    Sketcher.Constraint("Coincident", 3, 2, 0, 1),
    Sketcher.Constraint("Vertical", 0),
    Sketcher.Constraint("Horizontal", 1),
    Sketcher.Constraint("Vertical", 2),
    Sketcher.Constraint("Horizontal", 3),
    Sketcher.Constraint("Equal", 3, 0),
    Sketcher.Constraint("DistanceX", 1, 1, 1, 2, Q("0.5 in")),
    Sketcher.Constraint("DistanceX", 0, 2, -1, 1, Q("5.75 in")),
    Sketcher.Constraint("DistanceY", 0, 2, -1, 1, Q("5.75 in")),
])
pad24 = body24.newObject("PartDesign::Pad", "Pad023")
pad24.Profile = sketch24
pad24.Length = Q("0.75 in")
body25 = doc.addObject("PartDesign::Body", "Body024")

# Sketch on XZ plane
sketch25 = body25.newObject("Sketcher::SketchObject", "Sketch024")
sketch25.AttachmentSupport = (doc.getObject("XZ_Plane024"), [""])
sketch25.MapMode = "FlatFace"
sketch25.addGeometry([
    Part.LineSegment(App.Vector(-133, 133, 0), App.Vector(133, 133, 0)),
    Part.LineSegment(App.Vector(133, 133, 0), App.Vector(133, 146, 0)),
    Part.LineSegment(App.Vector(133, 146, 0), App.Vector(-133, 146, 0)),
    Part.LineSegment(App.Vector(-133, 146, 0), App.Vector(-133, 133, 0)),
], False)
sketch25.addConstraint([
    Sketcher.Constraint("Coincident", 0, 2, 1, 1),
    Sketcher.Constraint("Coincident", 1, 2, 2, 1),
    Sketcher.Constraint("Coincident", 2, 2, 3, 1),
    Sketcher.Constraint("Coincident", 3, 2, 0, 1),
    Sketcher.Constraint("Horizontal", 0),
    Sketcher.Constraint("Vertical", 1),
    Sketcher.Constraint("Horizontal", 2),
    Sketcher.Constraint("Vertical", 3),
    Sketcher.Constraint("DistanceX", 0, 1, 0, 2, Q("10.5 in")),
    Sketcher.Constraint("DistanceY", 1, 1, 1, 2, Q("0.5 in")),
    Sketcher.Constraint("DistanceX", -1, 1, 0, 2, Q("5.25 in")),
    Sketcher.Constraint("DistanceY", -1, 1, 0, 2, Q("5.25 in")),
])
pad25 = body25.newObject("PartDesign::Pad", "Pad024")
pad25.Profile = sketch25
pad25.Length = Q("0.75 in")
body26 = doc.addObject("PartDesign::Body", "Body025")

# Sketch on XZ plane
sketch26 = body26.newObject("Sketcher::SketchObject", "Sketch025")
sketch26.AttachmentSupport = (doc.getObject("XZ_Plane025"), [""])
sketch26.MapMode = "FlatFace"
sketch26.addGeometry([
    Part.LineSegment(App.Vector(146, 133, 0), App.Vector(133, 133, 0)),
    Part.LineSegment(App.Vector(133, 133, 0), App.Vector(133, -133, 0)),
    Part.LineSegment(App.Vector(133, -133, 0), App.Vector(146, -133, 0)),
    Part.LineSegment(App.Vector(146, -133, 0), App.Vector(146, 133, 0)),
], False)
sketch26.addConstraint([
    Sketcher.Constraint("Coincident", 0, 2, 1, 1),
    Sketcher.Constraint("Coincident", 1, 2, 2, 1),
    Sketcher.Constraint("Coincident", 2, 2, 3, 1),
    Sketcher.Constraint("Coincident", 3, 2, 0, 1),
    Sketcher.Constraint("Horizontal", 0),
    Sketcher.Constraint("Vertical", 1),
    Sketcher.Constraint("Horizontal", 2),
    Sketcher.Constraint("Vertical", 3),
    Sketcher.Constraint("DistanceX", 0, 2, 0, 1, Q("0.5 in")),
    Sketcher.Constraint("DistanceY", 1, 2, 1, 1, Q("10.5 in")),
    Sketcher.Constraint("DistanceX", -1, 1, 0, 2, Q("5.25 in")),
    Sketcher.Constraint("DistanceY", -1, 1, 0, 2, Q("5.25 in")),
])
pad26 = body26.newObject("PartDesign::Pad", "Pad025")
pad26.Profile = sketch26
pad26.Length = Q("0.75 in")
body27 = doc.addObject("PartDesign::Body", "Body026")

# Sketch on XZ plane
sketch27 = body27.newObject("Sketcher::SketchObject", "Sketch026")
sketch27.AttachmentSupport = (doc.getObject("XZ_Plane026"), [""])
sketch27.MapMode = "FlatFace"
sketch27.addGeometry([
    Part.LineSegment(App.Vector(133, -133, 0), App.Vector(-133, -133, 0)),
    Part.LineSegment(App.Vector(-133, -133, 0), App.Vector(-133, -146, 0)),
    Part.LineSegment(App.Vector(-133, -146, 0), App.Vector(133, -146, 0)),
    Part.LineSegment(App.Vector(133, -146, 0), App.Vector(133, -133, 0)),
], False)
sketch27.addConstraint([
    Sketcher.Constraint("Coincident", 0, 2, 1, 1),
    Sketcher.Constraint("Coincident", 1, 2, 2, 1),
    Sketcher.Constraint("Coincident", 2, 2, 3, 1),
    Sketcher.Constraint("Coincident", 3, 2, 0, 1),
    Sketcher.Constraint("Horizontal", 0),
    Sketcher.Constraint("Vertical", 1),
    Sketcher.Constraint("Horizontal", 2),
    Sketcher.Constraint("Vertical", 3),
    Sketcher.Constraint("DistanceX", 0, 2, 0, 1, Q("10.5 in")),
    Sketcher.Constraint("DistanceY", 1, 2, 1, 1, Q("0.5 in")),
    Sketcher.Constraint("DistanceX", 0, 2, -1, 1, Q("5.25 in")),
    Sketcher.Constraint("DistanceY", 0, 2, -1, 1, Q("5.25 in")),
])
pad27 = body27.newObject("PartDesign::Pad", "Pad026")
pad27.Profile = sketch27
pad27.Length = Q("0.75 in")
body28 = doc.addObject("PartDesign::Body", "Body027")

# Sketch on XZ plane
sketch28 = body28.newObject("Sketcher::SketchObject", "Sketch027")
sketch28.AttachmentSupport = (doc.getObject("XZ_Plane027"), [""])
sketch28.MapMode = "FlatFace"
sketch28.addGeometry([
    Part.LineSegment(App.Vector(-133, 133, 0), App.Vector(-146, 133, 0)),
    Part.LineSegment(App.Vector(-146, 133, 0), App.Vector(-146, -133, 0)),
    Part.LineSegment(App.Vector(-146, -133, 0), App.Vector(-133, -133, 0)),
    Part.LineSegment(App.Vector(-133, -133, 0), App.Vector(-133, 133, 0)),
], False)
sketch28.addConstraint([
    Sketcher.Constraint("Coincident", 0, 2, 1, 1),
    Sketcher.Constraint("Coincident", 1, 2, 2, 1),
    Sketcher.Constraint("Coincident", 2, 2, 3, 1),
    Sketcher.Constraint("Coincident", 3, 2, 0, 1),
    Sketcher.Constraint("Horizontal", 0),
    Sketcher.Constraint("Vertical", 1),
    Sketcher.Constraint("Horizontal", 2),
    Sketcher.Constraint("Vertical", 3),
    Sketcher.Constraint("DistanceX", 0, 2, 0, 1, Q("0.5 in")),
    Sketcher.Constraint("DistanceY", 1, 2, 1, 1, Q("10.5 in")),
    Sketcher.Constraint("DistanceX", 0, 2, -1, 1, Q("5.75 in")),
    Sketcher.Constraint("DistanceY", -1, 1, 0, 2, Q("5.25 in")),
])
pad28 = body28.newObject("PartDesign::Pad", "Pad027")
pad28.Profile = sketch28
pad28.Length = Q("0.75 in")
body29 = doc.addObject("PartDesign::Body", "Body028")

# Sketch on XZ plane
sketch29 = body29.newObject("Sketcher::SketchObject", "Sketch028")
sketch29.AttachmentSupport = (doc.getObject("XZ_Plane028"), [""])
sketch29.MapMode = "FlatFace"
sketch29.addGeometry([
    Part.LineSegment(App.Vector(0, 133, 0), App.Vector(-133, 133, 0)),
    Part.LineSegment(App.Vector(-133, 133, 0), App.Vector(-68, 68, 0)),
    Part.LineSegment(App.Vector(-68, 68, 0), App.Vector(-17, 68, 0)),
    Part.LineSegment(App.Vector(-17, 68, 0), App.Vector(0, 133, 0)),
], False)
sketch29.addConstraint([
    Sketcher.Constraint("Coincident", 0, 2, 1, 1),
    Sketcher.Constraint("Coincident", 1, 2, 2, 1),
    Sketcher.Constraint("Coincident", 2, 2, 3, 1),
    Sketcher.Constraint("Coincident", 3, 2, 0, 1),
    Sketcher.Constraint("Horizontal", 0),
    Sketcher.Constraint("Horizontal", 2),
    Sketcher.Constraint("PointOnObject", 3, 2, -2),
    Sketcher.Constraint("DistanceX", 2, 1, 2, 2, Q("2 in")),
    Sketcher.Constraint("Angle", 1, Q("-45 deg")),
    Sketcher.Constraint("Angle", 3, Q("75 deg")),
    Sketcher.Constraint("DistanceX", 0, 2, 0, 1, Q("5.25 in")),
    Sketcher.Constraint("DistanceY", -1, 1, 0, 2, Q("5.25 in")),
])
pad29 = body29.newObject("PartDesign::Pad", "Pad028")
pad29.Profile = sketch29
pad29.Length = Q("0.75 in")
body30 = doc.addObject("PartDesign::Body", "Body029")

# Sketch on XZ plane
sketch30 = body30.newObject("Sketcher::SketchObject", "Sketch029")
sketch30.AttachmentSupport = (doc.getObject("XZ_Plane029"), [""])
sketch30.MapMode = "FlatFace"
sketch30.addGeometry([
    Part.LineSegment(App.Vector(133, 133, 0), App.Vector(0, 133, 0)),
    Part.LineSegment(App.Vector(0, 133, 0), App.Vector(17, 68, 0)),
    Part.LineSegment(App.Vector(17, 68, 0), App.Vector(68, 68, 0)),
    Part.LineSegment(App.Vector(68, 68, 0), App.Vector(133, 133, 0)),
], False)
sketch30.addConstraint([
    Sketcher.Constraint("Coincident", 0, 2, 1, 1),
    Sketcher.Constraint("Coincident", 1, 2, 2, 1),
    Sketcher.Constraint("Coincident", 2, 2, 3, 1),
    Sketcher.Constraint("Coincident", 3, 2, 0, 1),
    Sketcher.Constraint("Horizontal", 0),
    Sketcher.Constraint("Horizontal", 2),
    Sketcher.Constraint("PointOnObject", 0, 2, -2),
    Sketcher.Constraint("DistanceX", 2, 1, 2, 2, Q("2 in")),
    Sketcher.Constraint("Angle", 1, Q("-75 deg")),
    Sketcher.Constraint("Angle", 3, Q("45 deg")),
    Sketcher.Constraint("DistanceX", 0, 2, 0, 1, Q("5.25 in")),
    Sketcher.Constraint("DistanceY", -1, 1, 0, 2, Q("5.25 in")),
])
pad30 = body30.newObject("PartDesign::Pad", "Pad029")
pad30.Profile = sketch30
pad30.Length = Q("0.75 in")
body31 = doc.addObject("PartDesign::Body", "Body030")

# Sketch on XZ plane
sketch31 = body31.newObject("Sketcher::SketchObject", "Sketch030")
sketch31.AttachmentSupport = (doc.getObject("XZ_Plane030"), [""])
sketch31.MapMode = "FlatFace"
sketch31.addGeometry([
    Part.LineSegment(App.Vector(-68, 68, 0), App.Vector(-133, 133, 0)),
    Part.LineSegment(App.Vector(-133, 133, 0), App.Vector(-133, 0, 0)),
    Part.LineSegment(App.Vector(-133, 0, 0), App.Vector(-68, 17, 0)),
    Part.LineSegment(App.Vector(-68, 17, 0), App.Vector(-68, 68, 0)),
], False)
sketch31.addConstraint([
    Sketcher.Constraint("Coincident", 0, 2, 1, 1),
    Sketcher.Constraint("Coincident", 1, 2, 2, 1),
    Sketcher.Constraint("Coincident", 2, 2, 3, 1),
    Sketcher.Constraint("Coincident", 3, 2, 0, 1),
    Sketcher.Constraint("Vertical", 1),
    Sketcher.Constraint("Vertical", 3),
    Sketcher.Constraint("PointOnObject", 1, 2, -1),
    Sketcher.Constraint("DistanceY", 3, 1, 3, 2, Q("2 in")),
    Sketcher.Constraint("Angle", 0, Q("135 deg")),
    Sketcher.Constraint("Angle", 2, Q("15 deg")),
    Sketcher.Constraint("DistanceY", 1, 2, 1, 1, Q("5.25 in")),
    Sketcher.Constraint("DistanceX", 0, 2, -1, 1, Q("5.25 in")),
])
pad31 = body31.newObject("PartDesign::Pad", "Pad030")
pad31.Profile = sketch31
pad31.Length = Q("0.75 in")
body32 = doc.addObject("PartDesign::Body", "Body031")

# Sketch on XZ plane
sketch32 = body32.newObject("Sketcher::SketchObject", "Sketch031")
sketch32.AttachmentSupport = (doc.getObject("XZ_Plane031"), [""])
sketch32.MapMode = "FlatFace"
sketch32.addGeometry([
    Part.LineSegment(App.Vector(-68, -17, 0), App.Vector(-133, 0, 0)),
    Part.LineSegment(App.Vector(-133, 0, 0), App.Vector(-133, -133, 0)),
    Part.LineSegment(App.Vector(-133, -133, 0), App.Vector(-68, -68, 0)),
    Part.LineSegment(App.Vector(-68, -68, 0), App.Vector(-68, -17, 0)),
], False)
sketch32.addConstraint([
    Sketcher.Constraint("Coincident", 0, 2, 1, 1),
    Sketcher.Constraint("Coincident", 1, 2, 2, 1),
    Sketcher.Constraint("Coincident", 2, 2, 3, 1),
    Sketcher.Constraint("Coincident", 3, 2, 0, 1),
    Sketcher.Constraint("Vertical", 1),
    Sketcher.Constraint("Vertical", 3),
    Sketcher.Constraint("PointOnObject", 0, 2, -1),
    Sketcher.Constraint("DistanceY", 3, 1, 3, 2, Q("2 in")),
    Sketcher.Constraint("Angle", 0, Q("165 deg")),
    Sketcher.Constraint("Angle", 2, Q("45 deg")),
    Sketcher.Constraint("DistanceY", 1, 2, 1, 1, Q("5.25 in")),
    Sketcher.Constraint("DistanceX", 0, 2, -1, 1, Q("5.25 in")),
])
pad32 = body32.newObject("PartDesign::Pad", "Pad031")
pad32.Profile = sketch32
pad32.Length = Q("0.75 in")
body33 = doc.addObject("PartDesign::Body", "Body032")

# Sketch on XZ plane
sketch33 = body33.newObject("Sketcher::SketchObject", "Sketch032")
sketch33.AttachmentSupport = (doc.getObject("XZ_Plane032"), [""])
sketch33.MapMode = "FlatFace"
sketch33.addGeometry([
    Part.LineSegment(App.Vector(133, 0, 0), App.Vector(133, 133, 0)),
    Part.LineSegment(App.Vector(133, 133, 0), App.Vector(68, 68, 0)),
    Part.LineSegment(App.Vector(68, 68, 0), App.Vector(68, 17, 0)),
    Part.LineSegment(App.Vector(68, 17, 0), App.Vector(133, 0, 0)),
], False)
sketch33.addConstraint([
    Sketcher.Constraint("Coincident", 0, 2, 1, 1),
    Sketcher.Constraint("Coincident", 1, 2, 2, 1),
    Sketcher.Constraint("Coincident", 2, 2, 3, 1),
    Sketcher.Constraint("Coincident", 3, 2, 0, 1),
    Sketcher.Constraint("Vertical", 0),
    Sketcher.Constraint("Vertical", 2),
    Sketcher.Constraint("PointOnObject", 3, 2, -1),
    Sketcher.Constraint("DistanceY", 2, 2, 2, 1, Q("2 in")),
    Sketcher.Constraint("Angle", 1, Q("-135 deg")),
    Sketcher.Constraint("Angle", 3, Q("-15 deg")),
    Sketcher.Constraint("DistanceY", 0, 1, 0, 2, Q("5.25 in")),
    Sketcher.Constraint("DistanceX", -1, 1, 0, 2, Q("5.25 in")),
])
pad33 = body33.newObject("PartDesign::Pad", "Pad032")
pad33.Profile = sketch33
pad33.Length = Q("0.75 in")
body34 = doc.addObject("PartDesign::Body", "Body033")

# Sketch on XZ plane
sketch34 = body34.newObject("Sketcher::SketchObject", "Sketch033")
sketch34.AttachmentSupport = (doc.getObject("XZ_Plane033"), [""])
sketch34.MapMode = "FlatFace"
sketch34.addGeometry([
    Part.LineSegment(App.Vector(133, -133, 0), App.Vector(133, 0, 0)),
    Part.LineSegment(App.Vector(133, 0, 0), App.Vector(68, -17, 0)),
    Part.LineSegment(App.Vector(68, -17, 0), App.Vector(68, -68, 0)),
    Part.LineSegment(App.Vector(68, -68, 0), App.Vector(133, -133, 0)),
], False)
sketch34.addConstraint([
    Sketcher.Constraint("Coincident", 0, 2, 1, 1),
    Sketcher.Constraint("Coincident", 1, 2, 2, 1),
    Sketcher.Constraint("Coincident", 2, 2, 3, 1),
    Sketcher.Constraint("Coincident", 3, 2, 0, 1),
    Sketcher.Constraint("Vertical", 0),
    Sketcher.Constraint("Vertical", 2),
    Sketcher.Constraint("PointOnObject", 0, 2, -1),
    Sketcher.Constraint("DistanceY", 2, 2, 2, 1, Q("2 in")),
    Sketcher.Constraint("Angle", 1, Q("-165 deg")),
    Sketcher.Constraint("Angle", 3, Q("-45 deg")),
    Sketcher.Constraint("DistanceY", 0, 1, 0, 2, Q("5.25 in")),
    Sketcher.Constraint("DistanceX", -1, 1, 0, 2, Q("5.25 in")),
])
pad34 = body34.newObject("PartDesign::Pad", "Pad033")
pad34.Profile = sketch34
pad34.Length = Q("0.75 in")
body35 = doc.addObject("PartDesign::Body", "Body034")

# Sketch on XZ plane
sketch35 = body35.newObject("Sketcher::SketchObject", "Sketch034")
sketch35.AttachmentSupport = (doc.getObject("XZ_Plane034"), [""])
sketch35.MapMode = "FlatFace"
sketch35.addGeometry([
    Part.LineSegment(App.Vector(-68, -68, 0), App.Vector(-133, -133, 0)),
    Part.LineSegment(App.Vector(-133, -133, 0), App.Vector(0, -133, 0)),
    Part.LineSegment(App.Vector(0, -133, 0), App.Vector(-17, -68, 0)),
    Part.LineSegment(App.Vector(-17, -68, 0), App.Vector(-68, -68, 0)),
], False)
sketch35.addConstraint([
    Sketcher.Constraint("Coincident", 0, 2, 1, 1),
    Sketcher.Constraint("Coincident", 1, 2, 2, 1),
    Sketcher.Constraint("Coincident", 2, 2, 3, 1),
    Sketcher.Constraint("Coincident", 3, 2, 0, 1),
    Sketcher.Constraint("Horizontal", 1),
    Sketcher.Constraint("Horizontal", 3),
    Sketcher.Constraint("PointOnObject", 1, 2, -2),
    Sketcher.Constraint("DistanceX", 3, 2, 3, 1, Q("2 in")),
    Sketcher.Constraint("Angle", 0, Q("-135 deg")),
    Sketcher.Constraint("Angle", 2, Q("105 deg")),
    Sketcher.Constraint("DistanceX", 1, 1, 1, 2, Q("5.25 in")),
    Sketcher.Constraint("DistanceY", 0, 2, -1, 1, Q("5.25 in")),
])
pad35 = body35.newObject("PartDesign::Pad", "Pad034")
pad35.Profile = sketch35
pad35.Length = Q("0.75 in")
body36 = doc.addObject("PartDesign::Body", "Body035")

# Sketch on XZ plane
sketch36 = body36.newObject("Sketcher::SketchObject", "Sketch035")
sketch36.AttachmentSupport = (doc.getObject("XZ_Plane035"), [""])
sketch36.MapMode = "FlatFace"
sketch36.addGeometry([
    Part.LineSegment(App.Vector(17, -68, 0), App.Vector(0, -133, 0)),
    Part.LineSegment(App.Vector(0, -133, 0), App.Vector(133, -133, 0)),
    Part.LineSegment(App.Vector(133, -133, 0), App.Vector(68, -68, 0)),
    Part.LineSegment(App.Vector(68, -68, 0), App.Vector(17, -68, 0)),
], False)
sketch36.addConstraint([
    Sketcher.Constraint("Coincident", 0, 2, 1, 1),
    Sketcher.Constraint("Coincident", 1, 2, 2, 1),
    Sketcher.Constraint("Coincident", 2, 2, 3, 1),
    Sketcher.Constraint("Coincident", 3, 2, 0, 1),
    Sketcher.Constraint("Horizontal", 1),
    Sketcher.Constraint("Horizontal", 3),
    Sketcher.Constraint("PointOnObject", 0, 2, -2),
    Sketcher.Constraint("DistanceX", 3, 2, 3, 1, Q("2 in")),
    Sketcher.Constraint("Angle", 0, Q("-105 deg")),
    Sketcher.Constraint("Angle", 2, Q("135 deg")),
    Sketcher.Constraint("DistanceX", 1, 1, 1, 2, Q("5.25 in")),
    Sketcher.Constraint("DistanceY", 0, 2, -1, 1, Q("5.25 in")),
])
pad36 = body36.newObject("PartDesign::Pad", "Pad035")
pad36.Profile = sketch36
pad36.Length = Q("0.75 in")

doc.recompute()
